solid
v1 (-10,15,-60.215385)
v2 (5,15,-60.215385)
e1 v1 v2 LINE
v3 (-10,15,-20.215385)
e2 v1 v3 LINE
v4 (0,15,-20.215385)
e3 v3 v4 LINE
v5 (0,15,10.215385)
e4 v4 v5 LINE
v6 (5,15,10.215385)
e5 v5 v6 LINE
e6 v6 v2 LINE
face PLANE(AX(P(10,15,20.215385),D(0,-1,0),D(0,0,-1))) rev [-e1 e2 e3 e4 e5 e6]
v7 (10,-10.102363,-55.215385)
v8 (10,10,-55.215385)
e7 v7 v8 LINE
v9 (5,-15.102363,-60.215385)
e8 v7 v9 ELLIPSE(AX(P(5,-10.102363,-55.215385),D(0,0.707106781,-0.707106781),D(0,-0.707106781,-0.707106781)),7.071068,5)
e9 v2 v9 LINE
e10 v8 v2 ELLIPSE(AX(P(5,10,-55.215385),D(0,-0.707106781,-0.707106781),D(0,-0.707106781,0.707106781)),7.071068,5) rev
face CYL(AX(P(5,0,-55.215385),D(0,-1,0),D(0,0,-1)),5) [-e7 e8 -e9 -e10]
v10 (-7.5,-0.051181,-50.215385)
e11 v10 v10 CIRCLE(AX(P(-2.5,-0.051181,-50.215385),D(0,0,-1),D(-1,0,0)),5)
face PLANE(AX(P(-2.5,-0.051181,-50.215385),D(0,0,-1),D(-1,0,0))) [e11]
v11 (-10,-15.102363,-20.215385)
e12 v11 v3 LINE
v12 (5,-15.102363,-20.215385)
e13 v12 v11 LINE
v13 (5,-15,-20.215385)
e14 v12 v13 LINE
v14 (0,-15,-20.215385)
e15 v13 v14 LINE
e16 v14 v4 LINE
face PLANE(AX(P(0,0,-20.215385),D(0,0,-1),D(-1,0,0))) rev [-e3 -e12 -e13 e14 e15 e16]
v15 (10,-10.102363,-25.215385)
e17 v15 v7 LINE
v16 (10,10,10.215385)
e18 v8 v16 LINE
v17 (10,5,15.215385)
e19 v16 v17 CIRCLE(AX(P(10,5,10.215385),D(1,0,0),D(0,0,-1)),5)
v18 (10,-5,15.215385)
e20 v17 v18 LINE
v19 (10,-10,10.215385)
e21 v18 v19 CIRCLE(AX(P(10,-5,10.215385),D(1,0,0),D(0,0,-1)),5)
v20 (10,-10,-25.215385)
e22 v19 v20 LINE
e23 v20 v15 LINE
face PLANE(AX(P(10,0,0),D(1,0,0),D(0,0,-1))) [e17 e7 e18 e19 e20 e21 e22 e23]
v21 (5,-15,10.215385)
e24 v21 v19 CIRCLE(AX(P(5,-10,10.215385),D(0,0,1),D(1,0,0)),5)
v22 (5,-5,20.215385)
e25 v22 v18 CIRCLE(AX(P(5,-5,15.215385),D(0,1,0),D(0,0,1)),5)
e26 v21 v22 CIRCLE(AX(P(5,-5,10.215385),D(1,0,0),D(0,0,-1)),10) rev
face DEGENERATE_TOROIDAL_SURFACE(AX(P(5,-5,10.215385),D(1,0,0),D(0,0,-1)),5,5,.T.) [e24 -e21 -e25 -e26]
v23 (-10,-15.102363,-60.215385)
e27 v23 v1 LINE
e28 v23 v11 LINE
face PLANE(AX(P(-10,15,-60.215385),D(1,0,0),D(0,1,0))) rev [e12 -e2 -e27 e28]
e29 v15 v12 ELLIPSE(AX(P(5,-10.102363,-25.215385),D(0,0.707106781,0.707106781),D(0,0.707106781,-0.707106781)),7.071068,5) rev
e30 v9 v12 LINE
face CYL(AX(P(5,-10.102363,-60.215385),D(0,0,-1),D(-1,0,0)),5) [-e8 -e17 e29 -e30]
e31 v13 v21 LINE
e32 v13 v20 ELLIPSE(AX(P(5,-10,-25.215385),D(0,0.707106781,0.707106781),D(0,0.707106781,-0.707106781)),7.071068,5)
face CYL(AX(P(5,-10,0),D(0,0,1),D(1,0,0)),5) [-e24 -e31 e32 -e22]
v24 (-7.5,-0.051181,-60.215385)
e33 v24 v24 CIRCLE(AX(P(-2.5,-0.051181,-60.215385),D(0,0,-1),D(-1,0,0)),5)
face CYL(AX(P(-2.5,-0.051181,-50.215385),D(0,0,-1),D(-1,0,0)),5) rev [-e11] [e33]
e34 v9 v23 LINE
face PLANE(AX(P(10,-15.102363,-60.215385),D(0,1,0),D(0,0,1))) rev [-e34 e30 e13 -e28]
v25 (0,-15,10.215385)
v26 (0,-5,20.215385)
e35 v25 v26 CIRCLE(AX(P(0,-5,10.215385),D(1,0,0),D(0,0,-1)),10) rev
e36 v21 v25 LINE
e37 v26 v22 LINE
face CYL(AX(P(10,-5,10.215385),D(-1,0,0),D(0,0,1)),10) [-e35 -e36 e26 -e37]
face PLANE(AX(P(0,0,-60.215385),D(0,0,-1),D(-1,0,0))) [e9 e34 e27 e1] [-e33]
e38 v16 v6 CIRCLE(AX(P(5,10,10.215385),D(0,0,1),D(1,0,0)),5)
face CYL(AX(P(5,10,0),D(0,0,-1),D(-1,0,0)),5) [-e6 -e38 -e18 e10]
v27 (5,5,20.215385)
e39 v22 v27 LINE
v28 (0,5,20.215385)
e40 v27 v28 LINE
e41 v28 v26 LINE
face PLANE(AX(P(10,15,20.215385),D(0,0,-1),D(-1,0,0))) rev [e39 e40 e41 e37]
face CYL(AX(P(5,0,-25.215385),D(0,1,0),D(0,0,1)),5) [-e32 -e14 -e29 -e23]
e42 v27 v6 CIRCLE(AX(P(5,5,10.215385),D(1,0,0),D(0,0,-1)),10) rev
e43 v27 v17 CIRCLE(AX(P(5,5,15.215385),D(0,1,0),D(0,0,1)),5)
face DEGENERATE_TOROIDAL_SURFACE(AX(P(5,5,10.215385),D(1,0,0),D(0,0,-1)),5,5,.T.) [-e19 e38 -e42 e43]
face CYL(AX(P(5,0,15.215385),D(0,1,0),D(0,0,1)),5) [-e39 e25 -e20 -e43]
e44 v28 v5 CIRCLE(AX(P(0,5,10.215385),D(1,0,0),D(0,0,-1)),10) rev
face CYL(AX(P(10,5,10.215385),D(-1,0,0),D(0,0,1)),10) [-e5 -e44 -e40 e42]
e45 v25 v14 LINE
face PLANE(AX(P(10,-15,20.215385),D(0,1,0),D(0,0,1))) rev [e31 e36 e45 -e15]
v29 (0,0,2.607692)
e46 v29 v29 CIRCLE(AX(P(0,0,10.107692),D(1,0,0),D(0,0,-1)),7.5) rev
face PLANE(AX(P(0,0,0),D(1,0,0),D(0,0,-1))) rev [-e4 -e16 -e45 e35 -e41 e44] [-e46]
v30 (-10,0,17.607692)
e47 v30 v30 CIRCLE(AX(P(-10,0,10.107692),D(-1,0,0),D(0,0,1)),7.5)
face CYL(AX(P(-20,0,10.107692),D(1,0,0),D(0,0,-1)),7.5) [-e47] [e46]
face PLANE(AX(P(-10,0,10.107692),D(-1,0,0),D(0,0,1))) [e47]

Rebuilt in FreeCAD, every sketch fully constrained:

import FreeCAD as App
import Part
import Sketcher

V = App.Vector
Q = App.Units.Quantity


def edges_at(feature, points):
    """Names of the edges that pass closest to the given points."""
    edges = feature.Shape.Edges
    near = lambda p: min(range(len(edges)), key=lambda i: edges[i].distToShape(Part.Vertex(*p))[0])
    return sorted({f"Edge{near(p) + 1}" for p in points})


def add_polygon(sketch, points):
    """Adds a closed chain of lines whose ends are joined by coincident constraints."""
    first, n = sketch.GeometryCount, len(points)
    for a, b in zip(points, points[1:] + points[:1]):
        sketch.addGeometry(Part.LineSegment(App.Vector(*a, 0), App.Vector(*b, 0)), False)
    for i in range(n):
        sketch.addConstraint(Sketcher.Constraint("Coincident", first + i, 2, first + (i + 1) % n, 1))

doc = App.newDocument("Part")
params = doc.addObject("Spreadsheet::Sheet", "Params")
for row, (alias, value) in enumerate([
    ("sketch1_width", "30 mm"),
    ("pad1_length", "10 mm"),
    ("sketch2_diameter", "15 mm"),
    ("pad2_length", "20 mm"),
    ("fillet_radius", "10 mm"),
    ("sketch3_diameter", "15 mm"),
    ("pocket1_length", "10 mm"),
    ("sketch4_width", "20 mm"),
    ("pad3_length", "40 mm"),
    ("fillet2_radius", "5 mm"),
    ("sketch5_diameter", "10 mm"),
    ("pocket2_length", "10 mm"),
], start=1):
    params.set(f"A{row}", alias)
    params.set(f"B{row}", "=" + value)
    params.setAlias(f"B{row}", alias)

body = doc.addObject("PartDesign::Body", "Body")

sketch1 = body.newObject("Sketcher::SketchObject", "Sketch")
sketch1.AttachmentSupport = (doc.getObject("YZ_Plane"), [""])
sketch1.MapMode = "FlatFace"
add_polygon(sketch1, [(15, 20), (-15, 20), (-15, -20), (15, -20)])
sketch1.addConstraint([
    Sketcher.Constraint("Horizontal", 0),
    Sketcher.Constraint("Vertical", 1),
    Sketcher.Constraint("Horizontal", 2),
    Sketcher.Constraint("Vertical", 3),
    Sketcher.Constraint("Symmetric", 0, 2, 2, 2, -1, 1),
    Sketcher.Constraint("DistanceX", 0, 2, 0, 1, Q("30 mm")),
    Sketcher.Constraint("DistanceY", 1, 2, 1, 1, Q("40.430769 mm")),
])
sketch1.setExpression("Constraints[9]", "Params.sketch1_width")
pad1 = body.newObject("PartDesign::Pad", "Pad")
pad1.Profile = sketch1
pad1.setExpression("Length", "Params.pad1_length")

sketch2 = body.newObject("Sketcher::SketchObject", "Sketch001")
sketch2.AttachmentSupport = (doc.getObject("YZ_Plane"), [""])
sketch2.MapMode = "FlatFace"
sketch2.addGeometry(Part.Circle(V(0, 10, 0), V(0, 0, 1), 8), False)
sketch2.addConstraint([
    Sketcher.Constraint("PointOnObject", 0, 3, -2),
    Sketcher.Constraint("Diameter", 0, Q("15 mm")),
    Sketcher.Constraint("DistanceY", -1, 1, 0, 3, Q("10.107692 mm")),
])
sketch2.setExpression("Constraints[1]", "Params.sketch2_diameter")
pad2 = body.newObject("PartDesign::Pad", "Pad001")
pad2.Profile = sketch2
pad2.setExpression("Length", "Params.pad2_length")
pad2.Reversed = True
doc.recompute()

fillet = body.newObject("PartDesign::Fillet", "Fillet")
fillet.Base = (pad2, edges_at(pad2, [(5, -15, 20.215), (5, 15, 20.215)]))
fillet.setExpression("Radius", "Params.fillet_radius")

sketch3 = body.newObject("Sketcher::SketchObject", "Sketch002")
sketch3.AttachmentSupport = (doc.getObject("YZ_Plane"), [""])
sketch3.MapMode = "FlatFace"
sketch3.AttachmentOffset = App.Placement(V(0, 0, -10), App.Rotation())
sketch3.addGeometry(Part.Circle(V(0, 10, 0), V(0, 0, 1), 8), False)
sketch3.addConstraint([
    Sketcher.Constraint("PointOnObject", 0, 3, -2),
    Sketcher.Constraint("Diameter", 0, Q("15 mm")),
    Sketcher.Constraint("DistanceY", -1, 1, 0, 3, Q("10.107692 mm")),
])
sketch3.setExpression("Constraints[1]", "Params.sketch3_diameter")
pocket1 = body.newObject("PartDesign::Pocket", "Pocket")
pocket1.Profile = sketch3
pocket1.setExpression("Length", "Params.pocket1_length")

sketch4 = body.newObject("Sketcher::SketchObject", "Sketch003")
sketch4.AttachmentSupport = (doc.getObject("XY_Plane"), [""])
sketch4.MapMode = "FlatFace"
sketch4.AttachmentOffset = App.Placement(V(0, 0, -20.215385), App.Rotation())
add_polygon(sketch4, [(10, 15), (10, -15), (-10, -15), (-10, 15)])
sketch4.addConstraint([
    Sketcher.Constraint("Vertical", 0),
    Sketcher.Constraint("Horizontal", 1),
    Sketcher.Constraint("Vertical", 2),
    Sketcher.Constraint("Horizontal", 3),
    Sketcher.Constraint("DistanceX", 1, 2, 1, 1, Q("20 mm")),
    Sketcher.Constraint("DistanceX", -1, 1, 0, 2, Q("10 mm")),
    Sketcher.Constraint("DistanceY", -1, 1, 2, 2, Q("15 mm")),
    Sketcher.Constraint("DistanceY", 0, 2, 0, 1, Q("30.102363 mm")),
])
sketch4.setExpression("Constraints[8]", "Params.sketch4_width")
pad3 = body.newObject("PartDesign::Pad", "Pad002")
pad3.Profile = sketch4
pad3.setExpression("Length", "Params.pad3_length")
pad3.Reversed = True
doc.recompute()

fillet2 = body.newObject("PartDesign::Fillet", "Fillet001")
fillet2.Base = (pad3, edges_at(pad3, [
    (10, -15, -5),
    (10, 0, 20.215),
    (10, 12.071, 17.286),
    (10, -12.071, 17.286),
    (10, -15.051, -20.215),
    (10, -15.102, -40.215),
    (10, -0.051, -60.215),
    (10, 15, -40.215),
]))
fillet2.setExpression("Radius", "Params.fillet2_radius")

sketch5 = body.newObject("Sketcher::SketchObject", "Sketch004")
sketch5.AttachmentSupport = (doc.getObject("XY_Plane"), [""])
sketch5.MapMode = "FlatFace"
sketch5.AttachmentOffset = App.Placement(V(0, 0, -60.215385), App.Rotation())
sketch5.addGeometry(Part.Circle(V(-2, 0, 0), V(0, 0, 1), 5), False)
sketch5.addConstraint([
    Sketcher.Constraint("Diameter", 0, Q("10 mm")),
    Sketcher.Constraint("DistanceX", 0, 3, -1, 1, Q("2.5 mm")),
    Sketcher.Constraint("DistanceY", 0, 3, -1, 1, Q("0.051181 mm")),
])
sketch5.setExpression("Constraints[0]", "Params.sketch5_diameter")
pocket2 = body.newObject("PartDesign::Pocket", "Pocket001")
pocket2.Profile = sketch5
pocket2.setExpression("Length", "Params.pocket2_length")
pocket2.Reversed = True

doc.recompute()
